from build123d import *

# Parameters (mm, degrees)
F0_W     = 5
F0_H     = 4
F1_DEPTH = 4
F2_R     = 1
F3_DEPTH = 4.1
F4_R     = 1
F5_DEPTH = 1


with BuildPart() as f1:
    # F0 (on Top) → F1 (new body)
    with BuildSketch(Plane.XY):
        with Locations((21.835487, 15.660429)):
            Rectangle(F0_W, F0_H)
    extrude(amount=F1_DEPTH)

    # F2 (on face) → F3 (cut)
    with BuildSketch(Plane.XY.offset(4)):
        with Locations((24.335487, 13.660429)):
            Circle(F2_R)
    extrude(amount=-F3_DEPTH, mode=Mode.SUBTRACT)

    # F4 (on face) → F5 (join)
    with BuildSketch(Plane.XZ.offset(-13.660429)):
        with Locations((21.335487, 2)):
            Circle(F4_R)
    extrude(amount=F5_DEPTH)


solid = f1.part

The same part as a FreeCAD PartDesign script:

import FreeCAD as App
import Part
import Sketcher

doc = App.newDocument("Part")
params = doc.addObject("Spreadsheet::Sheet", "Params")
for row, (alias, value) in enumerate([
    ("sketch1_width", "5 mm"),
    ("sketch1_height", "4 mm"),
    ("pad1_length", "4 mm"),
    ("sketch2_diameter", "2 mm"),
    ("pocket1_length", "4.1 mm"),
    ("sketch3_diameter", "2 mm"),
    ("pad2_length", "1 mm"),
], start=1):
    params.set(f"A{row}", alias)
    params.set(f"B{row}", "=" + value)
    params.setAlias(f"B{row}", alias)

body = doc.addObject("PartDesign::Body", "Body")

# Sketch on XY plane
sketch1 = doc.addObject("Sketcher::SketchObject", "Sketch")
body.addObject(sketch1)
sketch1.AttachmentSupport = (doc.XY_Plane, [""])
sketch1.MapMode = "FlatFace"
sketch1.addGeometry(Part.LineSegment(App.Vector(19.3, 17.7, 0), App.Vector(19.3, 13.7, 0)), False)
sketch1.addGeometry(Part.LineSegment(App.Vector(19.3, 13.7, 0), App.Vector(24.3, 13.7, 0)), False)
sketch1.addGeometry(Part.LineSegment(App.Vector(24.3, 13.7, 0), App.Vector(24.3, 17.7, 0)), False)
sketch1.addGeometry(Part.LineSegment(App.Vector(24.3, 17.7, 0), App.Vector(19.3, 17.7, 0)), False)
sketch1.addConstraint(Sketcher.Constraint("Coincident", 0, 2, 1, 1))
sketch1.addConstraint(Sketcher.Constraint("Coincident", 1, 2, 2, 1))
sketch1.addConstraint(Sketcher.Constraint("Coincident", 2, 2, 3, 1))
sketch1.addConstraint(Sketcher.Constraint("Coincident", 3, 2, 0, 1))
sketch1.addConstraint(Sketcher.Constraint("Vertical", 0))
sketch1.addConstraint(Sketcher.Constraint("Horizontal", 1))
sketch1.addConstraint(Sketcher.Constraint("Vertical", 2))
sketch1.addConstraint(Sketcher.Constraint("Horizontal", 3))
sketch1.addConstraint(Sketcher.Constraint("DistanceX", 1, 1, 1, 2, 5.0))
sketch1.addConstraint(Sketcher.Constraint("DistanceY", 0, 2, 0, 1, 4.0))
sketch1.addConstraint(Sketcher.Constraint("DistanceY", -1, 1, 0, 2, 13.660429))
sketch1.addConstraint(Sketcher.Constraint("DistanceX", -1, 1, 0, 2, 19.335487))
sketch1.setExpression("Constraints[8]", "Params.sketch1_width")
sketch1.setExpression("Constraints[9]", "Params.sketch1_height")
pad1 = doc.addObject("PartDesign::Pad", "Pad")
body.addObject(pad1)
pad1.Profile = sketch1
pad1.setExpression("Length", "Params.pad1_length")

# Sketch on XY plane
sketch2 = doc.addObject("Sketcher::SketchObject", "Sketch001")
body.addObject(sketch2)
sketch2.AttachmentSupport = (doc.XY_Plane, [""])
sketch2.MapMode = "FlatFace"
sketch2.AttachmentOffset = App.Placement(App.Vector(0, 0, 4), App.Rotation())
sketch2.addGeometry(Part.Circle(App.Vector(24.3, 13.7, 0), App.Vector(0, 0, 1), 1), False)
sketch2.addConstraint(Sketcher.Constraint("Diameter", 0, 2.0))
sketch2.addConstraint(Sketcher.Constraint("DistanceY", -1, 1, 0, 3, 13.660429))
sketch2.addConstraint(Sketcher.Constraint("DistanceX", -1, 1, 0, 3, 24.335487))
sketch2.setExpression("Constraints[0]", "Params.sketch2_diameter")
pocket1 = doc.addObject("PartDesign::Pocket", "Pocket")
body.addObject(pocket1)
pocket1.Profile = sketch2
pocket1.setExpression("Length", "Params.pocket1_length")

# Sketch on XZ plane
sketch3 = doc.addObject("Sketcher::SketchObject", "Sketch002")
body.addObject(sketch3)
sketch3.AttachmentSupport = (doc.XZ_Plane, [""])
sketch3.MapMode = "FlatFace"
sketch3.AttachmentOffset = App.Placement(App.Vector(0, 0, -13.660429), App.Rotation())
sketch3.addGeometry(Part.Circle(App.Vector(21.3, 2, 0), App.Vector(0, 0, 1), 1), False)
sketch3.addConstraint(Sketcher.Constraint("Diameter", 0, 2.0))
sketch3.addConstraint(Sketcher.Constraint("DistanceY", -1, 1, 0, 3, 2.0))
sketch3.addConstraint(Sketcher.Constraint("DistanceX", -1, 1, 0, 3, 21.335487))
sketch3.setExpression("Constraints[0]", "Params.sketch3_diameter")
pad2 = doc.addObject("PartDesign::Pad", "Pad001")
body.addObject(pad2)
pad2.Profile = sketch3
pad2.setExpression("Length", "Params.pad2_length")

doc.recompute()
